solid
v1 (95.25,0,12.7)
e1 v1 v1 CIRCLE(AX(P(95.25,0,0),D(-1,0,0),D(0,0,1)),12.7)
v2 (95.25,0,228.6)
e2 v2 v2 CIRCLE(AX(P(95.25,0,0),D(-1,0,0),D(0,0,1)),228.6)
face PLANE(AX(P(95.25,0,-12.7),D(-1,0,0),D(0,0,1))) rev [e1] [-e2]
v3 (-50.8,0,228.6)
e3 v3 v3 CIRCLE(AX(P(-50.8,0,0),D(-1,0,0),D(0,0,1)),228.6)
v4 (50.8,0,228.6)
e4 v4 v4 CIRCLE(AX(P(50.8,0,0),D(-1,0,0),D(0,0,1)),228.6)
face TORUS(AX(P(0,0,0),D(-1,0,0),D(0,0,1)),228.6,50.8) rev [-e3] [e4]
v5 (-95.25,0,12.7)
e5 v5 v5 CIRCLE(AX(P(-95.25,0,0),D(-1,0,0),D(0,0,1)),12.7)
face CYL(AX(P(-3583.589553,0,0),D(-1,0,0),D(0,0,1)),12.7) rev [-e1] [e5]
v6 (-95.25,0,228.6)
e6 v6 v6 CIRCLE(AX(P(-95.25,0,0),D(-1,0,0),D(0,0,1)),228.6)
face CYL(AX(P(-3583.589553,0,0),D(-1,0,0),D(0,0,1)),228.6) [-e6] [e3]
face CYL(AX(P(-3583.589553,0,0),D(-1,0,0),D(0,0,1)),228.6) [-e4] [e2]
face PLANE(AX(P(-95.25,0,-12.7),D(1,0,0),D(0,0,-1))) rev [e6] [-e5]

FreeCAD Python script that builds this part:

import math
import FreeCAD as App
import Part
import Sketcher
Q = App.Units.Quantity

doc = App.newDocument("Part")
body = doc.addObject("PartDesign::Body", "Body")

# Sketch on XZ plane
sketch1 = body.newObject("Sketcher::SketchObject", "Sketch")
sketch1.AttachmentSupport = (doc.getObject("XZ_Plane"), [""])
sketch1.MapMode = "FlatFace"
sketch1.addGeometry([
    Part.LineSegment(App.Vector(-95.25, -228.6, 0), App.Vector(-95.25, -12.7, 0)),  # 0
    Part.LineSegment(App.Vector(-95.25, -12.7, 0), App.Vector(95.25, -12.7, 0)),  # 1
    Part.LineSegment(App.Vector(95.25, -12.7, 0), App.Vector(95.25, -228.6, 0)),  # 2
    Part.LineSegment(App.Vector(95.25, -228.6, 0), App.Vector(50.8, -228.6, 0)),  # 3
    Part.ArcOfCircle(Part.Circle(App.Vector(0, -228.6, 0), App.Vector(0, 0, 1), 50.8), math.radians(0), math.radians(180)),  # 4
    Part.LineSegment(App.Vector(-50.8, -228.6, 0), App.Vector(-95.25, -228.6, 0)),  # 5
], False)
sketch1.addConstraint([
    Sketcher.Constraint("Coincident", 0, 2, 1, 1),
    Sketcher.Constraint("Coincident", 1, 2, 2, 1),
    Sketcher.Constraint("Coincident", 2, 2, 3, 1),
    Sketcher.Constraint("Coincident", 3, 2, 4, 1),
    Sketcher.Constraint("Coincident", 4, 2, 5, 1),
    Sketcher.Constraint("Coincident", 5, 2, 0, 1),
    Sketcher.Constraint("Vertical", 0),
    Sketcher.Constraint("Horizontal", 1),
    Sketcher.Constraint("Vertical", 2),
    Sketcher.Constraint("Horizontal", 3),
    Sketcher.Constraint("Horizontal", 5),
    Sketcher.Constraint("Symmetric", 3, 2, 4, 2, -2),
    Sketcher.Constraint("Horizontal", 4, 3, 2, 2),
    Sketcher.Constraint("Equal", 3, 5),
    Sketcher.Constraint("Radius", 4, Q("2 in")),
    Sketcher.Constraint("DistanceX", 1, 1, 1, 2, Q("7.5 in")),
    Sketcher.Constraint("DistanceY", 0, 1, 0, 2, Q("8.5 in")),
    Sketcher.Constraint("DistanceY", 4, 3, -1, 1, Q("9 in")),
])
revolution = body.newObject("PartDesign::Revolution", "Revolution")
revolution.Profile = sketch1
revolution.ReferenceAxis = (sketch1, ["H_Axis"])
revolution.Angle = 360

doc.recompute()
